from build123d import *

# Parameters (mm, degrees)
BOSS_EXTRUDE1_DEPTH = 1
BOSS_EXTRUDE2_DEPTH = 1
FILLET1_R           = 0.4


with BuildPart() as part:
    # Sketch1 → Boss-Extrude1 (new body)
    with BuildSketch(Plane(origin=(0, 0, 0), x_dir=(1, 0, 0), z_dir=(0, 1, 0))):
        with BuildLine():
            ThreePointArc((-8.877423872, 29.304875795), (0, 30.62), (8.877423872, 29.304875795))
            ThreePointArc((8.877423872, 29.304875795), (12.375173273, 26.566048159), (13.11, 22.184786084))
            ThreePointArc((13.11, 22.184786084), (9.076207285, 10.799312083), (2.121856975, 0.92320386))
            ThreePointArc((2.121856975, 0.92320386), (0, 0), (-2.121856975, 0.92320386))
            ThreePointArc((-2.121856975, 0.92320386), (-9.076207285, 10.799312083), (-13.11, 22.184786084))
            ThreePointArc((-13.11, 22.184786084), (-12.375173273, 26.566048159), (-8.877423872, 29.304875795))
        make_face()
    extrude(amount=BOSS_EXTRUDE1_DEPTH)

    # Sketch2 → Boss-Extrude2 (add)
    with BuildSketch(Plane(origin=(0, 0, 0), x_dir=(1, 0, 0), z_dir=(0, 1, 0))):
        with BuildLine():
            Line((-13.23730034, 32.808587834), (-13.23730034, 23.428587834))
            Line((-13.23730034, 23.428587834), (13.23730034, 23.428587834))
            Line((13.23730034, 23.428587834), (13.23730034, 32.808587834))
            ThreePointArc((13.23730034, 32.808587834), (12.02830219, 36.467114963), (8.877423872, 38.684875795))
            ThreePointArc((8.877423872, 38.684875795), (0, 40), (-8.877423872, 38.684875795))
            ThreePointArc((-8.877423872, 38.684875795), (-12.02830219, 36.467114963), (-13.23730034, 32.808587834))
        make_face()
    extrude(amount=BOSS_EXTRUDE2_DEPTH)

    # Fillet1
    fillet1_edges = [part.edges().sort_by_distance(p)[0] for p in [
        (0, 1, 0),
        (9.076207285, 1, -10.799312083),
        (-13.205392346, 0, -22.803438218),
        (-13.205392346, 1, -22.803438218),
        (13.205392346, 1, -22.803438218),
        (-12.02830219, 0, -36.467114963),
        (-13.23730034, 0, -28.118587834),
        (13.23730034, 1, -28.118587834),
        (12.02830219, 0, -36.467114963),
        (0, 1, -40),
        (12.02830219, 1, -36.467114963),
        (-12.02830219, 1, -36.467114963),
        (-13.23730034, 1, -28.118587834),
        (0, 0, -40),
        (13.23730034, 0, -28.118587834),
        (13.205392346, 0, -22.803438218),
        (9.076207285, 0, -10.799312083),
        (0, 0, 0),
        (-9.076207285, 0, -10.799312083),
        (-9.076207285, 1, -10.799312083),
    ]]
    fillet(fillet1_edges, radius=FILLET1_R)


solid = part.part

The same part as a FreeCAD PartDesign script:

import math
import FreeCAD as App
import Part
import Sketcher
from FreeCAD import Vector


def edges_at(feature, points):
    """Names of the edges that pass closest to the given points."""
    edges = feature.Shape.Edges
    near = lambda p: min(range(len(edges)), key=lambda i: edges[i].distToShape(Part.Vertex(*p))[0])
    return sorted({f"Edge{near(p) + 1}" for p in points})

doc = App.newDocument("Part")
body = doc.addObject("PartDesign::Body", "Body")

# Sketch on XZ plane
sketch1 = doc.addObject("Sketcher::SketchObject", "Sketch")
body.addObject(sketch1)
sketch1.AttachmentSupport = (doc.XZ_Plane, [""])
sketch1.MapMode = "FlatFace"
sketch1.addGeometry(Part.ArcOfCircle(Part.Circle(Vector(0, 0, 0), Vector(0, 0, 1), 30.6), math.radians(-107), math.radians(-73)), False)
sketch1.addGeometry(Part.ArcOfCircle(Part.Circle(Vector(-7.1, -23.4, 0), Vector(0, 0, 1), 6.1), math.radians(168), math.radians(253)), False)
sketch1.addGeometry(Part.ArcOfCircle(Part.Circle(Vector(30.3, -31.2, 0), Vector(0, 0, 1), 44.4), math.radians(137), math.radians(168)), False)
sketch1.addGeometry(Part.ArcOfCircle(Part.Circle(Vector(0, -2.9, 0), Vector(0, 0, 1), 2.9), math.radians(43), math.radians(137)), False)
sketch1.addGeometry(Part.ArcOfCircle(Part.Circle(Vector(-30.3, -31.2, 0), Vector(0, 0, 1), 44.4), math.radians(12), math.radians(43)), False)
sketch1.addGeometry(Part.ArcOfCircle(Part.Circle(Vector(7.1, -23.4, 0), Vector(0, 0, 1), 6.1), math.radians(-73), math.radians(12)), False)
sketch1.addConstraint(Sketcher.Constraint("Tangent", 0, 1, 1, 2))
sketch1.addConstraint(Sketcher.Constraint("Tangent", 1, 1, 2, 2))
sketch1.addConstraint(Sketcher.Constraint("Tangent", 2, 1, 3, 2))
sketch1.addConstraint(Sketcher.Constraint("Tangent", 3, 1, 4, 2))
sketch1.addConstraint(Sketcher.Constraint("Tangent", 4, 1, 5, 2))
sketch1.addConstraint(Sketcher.Constraint("Tangent", 5, 1, 0, 2))
sketch1.addConstraint(Sketcher.Constraint("Coincident", 0, 3, -1, 1))
sketch1.addConstraint(Sketcher.Constraint("Equal", 2, 4))
sketch1.addConstraint(Sketcher.Constraint("Equal", 1, 5))
sketch1.addConstraint(Sketcher.Constraint("Symmetric", 2, 3, 4, 3, -2))
sketch1.addConstraint(Sketcher.Constraint("Radius", 3, 2.9))
sketch1.addConstraint(Sketcher.Constraint("Radius", 0, 30.62))
sketch1.addConstraint(Sketcher.Constraint("Radius", 1, 6.14))
sketch1.addConstraint(Sketcher.Constraint("Radius", 2, 44.38))
sketch1.addConstraint(Sketcher.Constraint("DistanceY", 3, 3, -1, 1, 2.9))
sketch1.addConstraint(Sketcher.Constraint("DistanceX", 1, 1, -1, 1, 13.11))
pad1 = doc.addObject("PartDesign::Pad", "Pad")
body.addObject(pad1)
pad1.Profile = sketch1
pad1.Length = 1
pad1.Reversed = True

# Sketch on XZ plane
sketch2 = doc.addObject("Sketcher::SketchObject", "Sketch001")
body.addObject(sketch2)
sketch2.AttachmentSupport = (doc.XZ_Plane, [""])
sketch2.MapMode = "FlatFace"
sketch2.addGeometry(Part.LineSegment(Vector(-13, -33, 0), Vector(-13, -23, 0)), False)
sketch2.addGeometry(Part.LineSegment(Vector(-13, -23, 0), Vector(13, -23, 0)), False)
sketch2.addGeometry(Part.LineSegment(Vector(13, -23, 0), Vector(13, -33, 0)), False)
sketch2.addGeometry(Part.ArcOfCircle(Part.Circle(Vector(7, -33, 0), Vector(0, 0, 1), 6), math.radians(-73), math.radians(0)), False)
sketch2.addGeometry(Part.ArcOfCircle(Part.Circle(Vector(0, -9, 0), Vector(0, 0, 1), 31), math.radians(-107), math.radians(-73)), False)
sketch2.addGeometry(Part.ArcOfCircle(Part.Circle(Vector(-7, -33, 0), Vector(0, 0, 1), 6), math.radians(180), math.radians(253)), False)
sketch2.addConstraint(Sketcher.Constraint("Coincident", 0, 2, 1, 1))
sketch2.addConstraint(Sketcher.Constraint("Coincident", 1, 2, 2, 1))
sketch2.addConstraint(Sketcher.Constraint("Tangent", 2, 2, 3, 2))
sketch2.addConstraint(Sketcher.Constraint("Tangent", 3, 1, 4, 2))
sketch2.addConstraint(Sketcher.Constraint("Tangent", 4, 1, 5, 2))
sketch2.addConstraint(Sketcher.Constraint("Tangent", 5, 1, 0, 1))
sketch2.addConstraint(Sketcher.Constraint("Vertical", 0))
sketch2.addConstraint(Sketcher.Constraint("Horizontal", 1))
sketch2.addConstraint(Sketcher.Constraint("Vertical", 2))
sketch2.addConstraint(Sketcher.Constraint("Equal", 3, 5))
sketch2.addConstraint(Sketcher.Constraint("Symmetric", 3, 3, 5, 3, -2))
sketch2.addConstraint(Sketcher.Constraint("Radius", 3, 6.14))
sketch2.addConstraint(Sketcher.Constraint("Radius", 4, 30.62))
sketch2.addConstraint(Sketcher.Constraint("DistanceY", 0, 1, 0, 2, 9.38))
sketch2.addConstraint(Sketcher.Constraint("DistanceY", 4, 3, -1, 1, 9.38))
sketch2.addConstraint(Sketcher.Constraint("DistanceX", 1, 1, 1, 2, 26.474601))
pad2 = doc.addObject("PartDesign::Pad", "Pad001")
body.addObject(pad2)
pad2.Profile = sketch2
pad2.Length = 1
pad2.Reversed = True
doc.recompute()

fillet = doc.addObject("PartDesign::Fillet", "Fillet")
body.addObject(fillet)
fillet.Base = (pad2, edges_at(pad2, [
    (0, 1, 0),
    (9.076, 1, -10.799),
    (-13.205, 0, -22.803),
    (-13.205, 1, -22.803),
    (13.205, 1, -22.803),
    (-12.028, 0, -36.467),
    (-13.237, 0, -28.119),
    (13.237, 1, -28.119),
    (12.028, 0, -36.467),
    (0, 1, -40),
    (12.028, 1, -36.467),
    (-12.028, 1, -36.467),
    (-13.237, 1, -28.119),
    (0, 0, -40),
    (13.237, 0, -28.119),
    (13.205, 0, -22.803),
    (9.076, 0, -10.799),
    (0, 0, 0),
    (-9.076, 0, -10.799),
    (-9.076, 1, -10.799),
]))
fillet.Radius = 0.4

doc.recompute()
